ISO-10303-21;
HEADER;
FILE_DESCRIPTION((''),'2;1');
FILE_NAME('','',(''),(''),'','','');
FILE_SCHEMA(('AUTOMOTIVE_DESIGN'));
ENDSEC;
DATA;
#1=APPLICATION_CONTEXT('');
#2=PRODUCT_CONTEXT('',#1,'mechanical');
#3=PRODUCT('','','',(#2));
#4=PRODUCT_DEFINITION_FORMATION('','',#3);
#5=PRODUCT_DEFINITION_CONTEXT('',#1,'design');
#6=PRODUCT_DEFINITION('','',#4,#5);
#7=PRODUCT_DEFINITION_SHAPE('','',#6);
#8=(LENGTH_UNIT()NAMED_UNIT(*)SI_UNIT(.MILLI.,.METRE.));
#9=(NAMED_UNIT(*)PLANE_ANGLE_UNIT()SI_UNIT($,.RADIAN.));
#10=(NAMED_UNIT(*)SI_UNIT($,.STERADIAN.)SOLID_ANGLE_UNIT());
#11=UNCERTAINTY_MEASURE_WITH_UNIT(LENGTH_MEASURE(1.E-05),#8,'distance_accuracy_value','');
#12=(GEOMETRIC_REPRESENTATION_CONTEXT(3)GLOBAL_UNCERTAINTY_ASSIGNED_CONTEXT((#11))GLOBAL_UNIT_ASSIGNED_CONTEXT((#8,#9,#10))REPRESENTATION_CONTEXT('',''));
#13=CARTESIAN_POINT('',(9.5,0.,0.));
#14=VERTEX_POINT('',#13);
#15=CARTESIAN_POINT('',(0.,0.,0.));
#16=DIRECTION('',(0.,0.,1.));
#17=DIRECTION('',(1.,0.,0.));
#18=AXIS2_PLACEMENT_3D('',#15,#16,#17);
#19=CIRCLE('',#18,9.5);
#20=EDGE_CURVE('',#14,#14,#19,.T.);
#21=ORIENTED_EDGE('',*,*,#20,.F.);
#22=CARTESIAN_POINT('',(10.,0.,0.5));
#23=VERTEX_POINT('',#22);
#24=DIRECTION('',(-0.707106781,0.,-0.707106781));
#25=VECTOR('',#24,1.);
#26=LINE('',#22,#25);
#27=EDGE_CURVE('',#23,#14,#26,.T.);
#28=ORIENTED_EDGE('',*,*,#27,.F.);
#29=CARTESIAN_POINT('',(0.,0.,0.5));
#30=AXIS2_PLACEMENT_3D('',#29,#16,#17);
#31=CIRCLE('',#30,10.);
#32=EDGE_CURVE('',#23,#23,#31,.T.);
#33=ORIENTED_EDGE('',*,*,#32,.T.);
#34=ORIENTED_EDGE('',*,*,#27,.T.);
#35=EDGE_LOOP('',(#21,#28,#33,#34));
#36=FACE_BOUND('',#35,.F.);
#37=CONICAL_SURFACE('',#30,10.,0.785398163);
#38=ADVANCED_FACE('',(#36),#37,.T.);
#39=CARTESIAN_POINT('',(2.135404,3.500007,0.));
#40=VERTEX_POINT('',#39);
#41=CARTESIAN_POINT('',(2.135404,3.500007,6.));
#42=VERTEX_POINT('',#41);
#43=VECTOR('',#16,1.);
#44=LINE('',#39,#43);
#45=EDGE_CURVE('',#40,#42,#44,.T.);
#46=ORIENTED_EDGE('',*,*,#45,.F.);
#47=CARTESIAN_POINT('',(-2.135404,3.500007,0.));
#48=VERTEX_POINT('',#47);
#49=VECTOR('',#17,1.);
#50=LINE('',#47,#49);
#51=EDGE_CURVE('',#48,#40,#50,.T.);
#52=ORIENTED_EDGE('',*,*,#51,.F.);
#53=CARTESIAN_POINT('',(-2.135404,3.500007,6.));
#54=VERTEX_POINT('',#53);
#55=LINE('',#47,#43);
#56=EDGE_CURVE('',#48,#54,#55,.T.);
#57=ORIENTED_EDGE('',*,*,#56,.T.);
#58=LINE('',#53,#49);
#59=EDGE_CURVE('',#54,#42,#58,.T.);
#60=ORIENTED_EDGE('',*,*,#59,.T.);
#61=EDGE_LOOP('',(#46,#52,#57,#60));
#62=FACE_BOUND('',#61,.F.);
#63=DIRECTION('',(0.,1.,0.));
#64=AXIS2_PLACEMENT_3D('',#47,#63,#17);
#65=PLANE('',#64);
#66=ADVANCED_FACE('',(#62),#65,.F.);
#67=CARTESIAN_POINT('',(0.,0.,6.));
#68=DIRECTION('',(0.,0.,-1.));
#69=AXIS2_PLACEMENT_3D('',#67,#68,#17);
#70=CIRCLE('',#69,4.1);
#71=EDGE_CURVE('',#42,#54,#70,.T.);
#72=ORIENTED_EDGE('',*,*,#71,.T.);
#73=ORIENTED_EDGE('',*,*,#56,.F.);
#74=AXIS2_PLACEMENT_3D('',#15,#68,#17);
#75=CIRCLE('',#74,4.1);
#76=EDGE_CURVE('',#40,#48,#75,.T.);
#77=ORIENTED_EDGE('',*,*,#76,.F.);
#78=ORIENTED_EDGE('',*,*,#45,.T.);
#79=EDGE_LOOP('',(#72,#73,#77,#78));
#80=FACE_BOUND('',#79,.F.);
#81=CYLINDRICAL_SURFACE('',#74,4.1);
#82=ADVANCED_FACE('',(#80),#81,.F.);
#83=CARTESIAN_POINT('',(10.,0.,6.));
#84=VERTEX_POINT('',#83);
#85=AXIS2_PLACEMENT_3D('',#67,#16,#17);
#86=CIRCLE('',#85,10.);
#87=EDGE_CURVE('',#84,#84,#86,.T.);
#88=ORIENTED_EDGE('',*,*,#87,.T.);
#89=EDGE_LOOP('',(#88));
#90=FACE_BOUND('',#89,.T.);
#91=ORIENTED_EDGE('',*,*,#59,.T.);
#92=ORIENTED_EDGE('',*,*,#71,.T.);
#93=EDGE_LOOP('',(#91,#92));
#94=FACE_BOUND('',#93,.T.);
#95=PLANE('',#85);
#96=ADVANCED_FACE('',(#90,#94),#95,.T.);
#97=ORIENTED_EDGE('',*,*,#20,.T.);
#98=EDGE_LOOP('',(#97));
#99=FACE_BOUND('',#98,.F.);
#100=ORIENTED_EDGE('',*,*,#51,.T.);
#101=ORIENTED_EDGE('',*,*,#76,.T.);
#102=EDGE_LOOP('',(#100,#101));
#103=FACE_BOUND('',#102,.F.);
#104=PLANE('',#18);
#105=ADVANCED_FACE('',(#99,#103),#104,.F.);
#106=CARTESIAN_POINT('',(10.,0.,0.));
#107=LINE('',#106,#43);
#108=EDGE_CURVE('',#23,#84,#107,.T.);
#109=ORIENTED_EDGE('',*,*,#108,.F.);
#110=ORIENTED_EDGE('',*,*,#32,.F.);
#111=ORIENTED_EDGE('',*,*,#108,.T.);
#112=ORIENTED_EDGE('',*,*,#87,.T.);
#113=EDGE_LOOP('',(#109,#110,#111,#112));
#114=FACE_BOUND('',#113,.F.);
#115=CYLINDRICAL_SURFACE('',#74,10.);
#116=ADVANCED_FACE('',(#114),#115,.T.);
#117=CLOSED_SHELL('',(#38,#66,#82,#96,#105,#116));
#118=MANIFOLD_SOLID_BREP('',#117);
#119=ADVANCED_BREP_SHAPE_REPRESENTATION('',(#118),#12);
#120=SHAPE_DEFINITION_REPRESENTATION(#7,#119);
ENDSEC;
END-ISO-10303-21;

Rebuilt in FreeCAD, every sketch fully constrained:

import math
import FreeCAD as App
import Part
import Sketcher

V = App.Vector


def edges_at(feature, points):
    """Names of the edges that pass closest to the given points."""
    edges = feature.Shape.Edges
    near = lambda p: min(range(len(edges)), key=lambda i: edges[i].distToShape(Part.Vertex(*p))[0])
    return sorted({f"Edge{near(p) + 1}" for p in points})

doc = App.newDocument("Part")
params = doc.addObject("Spreadsheet::Sheet", "Params")
for row, (alias, value) in enumerate([
    ("sketch1_diameter", "20 mm"),
    ("sketch1_radius", "4.1 mm"),
    ("pad1_length", "6 mm"),
    ("chamfer_size", "0.5 mm"),
], start=1):
    params.set(f"A{row}", alias)
    params.set(f"B{row}", "=" + value)
    params.setAlias(f"B{row}", alias)

body = doc.addObject("PartDesign::Body", "Body")

# Sketch on XY plane
sketch1 = body.newObject("Sketcher::SketchObject", "Sketch")
sketch1.AttachmentSupport = (doc.getObject("XY_Plane"), [""])
sketch1.MapMode = "FlatFace"
sketch1.addGeometry(Part.Circle(V(0, 0, 0), V(0, 0, 1), 10), False)
sketch1.addGeometry(Part.ArcOfCircle(Part.Circle(V(0, 0, 0), V(0, 0, 1), 4.1), math.radians(121), math.radians(419)), False)
sketch1.addGeometry(Part.LineSegment(V(-2.1, 3.5, 0), V(2.1, 3.5, 0)), False)
sketch1.addConstraint(Sketcher.Constraint("Coincident", 1, 1, 2, 1))
sketch1.addConstraint(Sketcher.Constraint("Coincident", 2, 2, 1, 2))
sketch1.addConstraint(Sketcher.Constraint("Horizontal", 2))
sketch1.addConstraint(Sketcher.Constraint("Coincident", 0, 3, -1, 1))
sketch1.addConstraint(Sketcher.Constraint("Coincident", 1, 3, -1, 1))
sketch1.addConstraint(Sketcher.Constraint("Diameter", 0, 20.0))
sketch1.addConstraint(Sketcher.Constraint("Radius", 1, 4.1))
sketch1.addConstraint(Sketcher.Constraint("DistanceY", -1, 1, 1, 1, 3.5))
sketch1.setExpression("Constraints[5]", "Params.sketch1_diameter")
sketch1.setExpression("Constraints[6]", "Params.sketch1_radius")
pad1 = body.newObject("PartDesign::Pad", "Pad")
pad1.Profile = sketch1
pad1.setExpression("Length", "Params.pad1_length")
doc.recompute()

chamfer = body.newObject("PartDesign::Chamfer", "Chamfer")
chamfer.Base = (pad1, edges_at(pad1, [(-10, 0, 0)]))
chamfer.setExpression("Size", "Params.chamfer_size")

doc.recompute()
